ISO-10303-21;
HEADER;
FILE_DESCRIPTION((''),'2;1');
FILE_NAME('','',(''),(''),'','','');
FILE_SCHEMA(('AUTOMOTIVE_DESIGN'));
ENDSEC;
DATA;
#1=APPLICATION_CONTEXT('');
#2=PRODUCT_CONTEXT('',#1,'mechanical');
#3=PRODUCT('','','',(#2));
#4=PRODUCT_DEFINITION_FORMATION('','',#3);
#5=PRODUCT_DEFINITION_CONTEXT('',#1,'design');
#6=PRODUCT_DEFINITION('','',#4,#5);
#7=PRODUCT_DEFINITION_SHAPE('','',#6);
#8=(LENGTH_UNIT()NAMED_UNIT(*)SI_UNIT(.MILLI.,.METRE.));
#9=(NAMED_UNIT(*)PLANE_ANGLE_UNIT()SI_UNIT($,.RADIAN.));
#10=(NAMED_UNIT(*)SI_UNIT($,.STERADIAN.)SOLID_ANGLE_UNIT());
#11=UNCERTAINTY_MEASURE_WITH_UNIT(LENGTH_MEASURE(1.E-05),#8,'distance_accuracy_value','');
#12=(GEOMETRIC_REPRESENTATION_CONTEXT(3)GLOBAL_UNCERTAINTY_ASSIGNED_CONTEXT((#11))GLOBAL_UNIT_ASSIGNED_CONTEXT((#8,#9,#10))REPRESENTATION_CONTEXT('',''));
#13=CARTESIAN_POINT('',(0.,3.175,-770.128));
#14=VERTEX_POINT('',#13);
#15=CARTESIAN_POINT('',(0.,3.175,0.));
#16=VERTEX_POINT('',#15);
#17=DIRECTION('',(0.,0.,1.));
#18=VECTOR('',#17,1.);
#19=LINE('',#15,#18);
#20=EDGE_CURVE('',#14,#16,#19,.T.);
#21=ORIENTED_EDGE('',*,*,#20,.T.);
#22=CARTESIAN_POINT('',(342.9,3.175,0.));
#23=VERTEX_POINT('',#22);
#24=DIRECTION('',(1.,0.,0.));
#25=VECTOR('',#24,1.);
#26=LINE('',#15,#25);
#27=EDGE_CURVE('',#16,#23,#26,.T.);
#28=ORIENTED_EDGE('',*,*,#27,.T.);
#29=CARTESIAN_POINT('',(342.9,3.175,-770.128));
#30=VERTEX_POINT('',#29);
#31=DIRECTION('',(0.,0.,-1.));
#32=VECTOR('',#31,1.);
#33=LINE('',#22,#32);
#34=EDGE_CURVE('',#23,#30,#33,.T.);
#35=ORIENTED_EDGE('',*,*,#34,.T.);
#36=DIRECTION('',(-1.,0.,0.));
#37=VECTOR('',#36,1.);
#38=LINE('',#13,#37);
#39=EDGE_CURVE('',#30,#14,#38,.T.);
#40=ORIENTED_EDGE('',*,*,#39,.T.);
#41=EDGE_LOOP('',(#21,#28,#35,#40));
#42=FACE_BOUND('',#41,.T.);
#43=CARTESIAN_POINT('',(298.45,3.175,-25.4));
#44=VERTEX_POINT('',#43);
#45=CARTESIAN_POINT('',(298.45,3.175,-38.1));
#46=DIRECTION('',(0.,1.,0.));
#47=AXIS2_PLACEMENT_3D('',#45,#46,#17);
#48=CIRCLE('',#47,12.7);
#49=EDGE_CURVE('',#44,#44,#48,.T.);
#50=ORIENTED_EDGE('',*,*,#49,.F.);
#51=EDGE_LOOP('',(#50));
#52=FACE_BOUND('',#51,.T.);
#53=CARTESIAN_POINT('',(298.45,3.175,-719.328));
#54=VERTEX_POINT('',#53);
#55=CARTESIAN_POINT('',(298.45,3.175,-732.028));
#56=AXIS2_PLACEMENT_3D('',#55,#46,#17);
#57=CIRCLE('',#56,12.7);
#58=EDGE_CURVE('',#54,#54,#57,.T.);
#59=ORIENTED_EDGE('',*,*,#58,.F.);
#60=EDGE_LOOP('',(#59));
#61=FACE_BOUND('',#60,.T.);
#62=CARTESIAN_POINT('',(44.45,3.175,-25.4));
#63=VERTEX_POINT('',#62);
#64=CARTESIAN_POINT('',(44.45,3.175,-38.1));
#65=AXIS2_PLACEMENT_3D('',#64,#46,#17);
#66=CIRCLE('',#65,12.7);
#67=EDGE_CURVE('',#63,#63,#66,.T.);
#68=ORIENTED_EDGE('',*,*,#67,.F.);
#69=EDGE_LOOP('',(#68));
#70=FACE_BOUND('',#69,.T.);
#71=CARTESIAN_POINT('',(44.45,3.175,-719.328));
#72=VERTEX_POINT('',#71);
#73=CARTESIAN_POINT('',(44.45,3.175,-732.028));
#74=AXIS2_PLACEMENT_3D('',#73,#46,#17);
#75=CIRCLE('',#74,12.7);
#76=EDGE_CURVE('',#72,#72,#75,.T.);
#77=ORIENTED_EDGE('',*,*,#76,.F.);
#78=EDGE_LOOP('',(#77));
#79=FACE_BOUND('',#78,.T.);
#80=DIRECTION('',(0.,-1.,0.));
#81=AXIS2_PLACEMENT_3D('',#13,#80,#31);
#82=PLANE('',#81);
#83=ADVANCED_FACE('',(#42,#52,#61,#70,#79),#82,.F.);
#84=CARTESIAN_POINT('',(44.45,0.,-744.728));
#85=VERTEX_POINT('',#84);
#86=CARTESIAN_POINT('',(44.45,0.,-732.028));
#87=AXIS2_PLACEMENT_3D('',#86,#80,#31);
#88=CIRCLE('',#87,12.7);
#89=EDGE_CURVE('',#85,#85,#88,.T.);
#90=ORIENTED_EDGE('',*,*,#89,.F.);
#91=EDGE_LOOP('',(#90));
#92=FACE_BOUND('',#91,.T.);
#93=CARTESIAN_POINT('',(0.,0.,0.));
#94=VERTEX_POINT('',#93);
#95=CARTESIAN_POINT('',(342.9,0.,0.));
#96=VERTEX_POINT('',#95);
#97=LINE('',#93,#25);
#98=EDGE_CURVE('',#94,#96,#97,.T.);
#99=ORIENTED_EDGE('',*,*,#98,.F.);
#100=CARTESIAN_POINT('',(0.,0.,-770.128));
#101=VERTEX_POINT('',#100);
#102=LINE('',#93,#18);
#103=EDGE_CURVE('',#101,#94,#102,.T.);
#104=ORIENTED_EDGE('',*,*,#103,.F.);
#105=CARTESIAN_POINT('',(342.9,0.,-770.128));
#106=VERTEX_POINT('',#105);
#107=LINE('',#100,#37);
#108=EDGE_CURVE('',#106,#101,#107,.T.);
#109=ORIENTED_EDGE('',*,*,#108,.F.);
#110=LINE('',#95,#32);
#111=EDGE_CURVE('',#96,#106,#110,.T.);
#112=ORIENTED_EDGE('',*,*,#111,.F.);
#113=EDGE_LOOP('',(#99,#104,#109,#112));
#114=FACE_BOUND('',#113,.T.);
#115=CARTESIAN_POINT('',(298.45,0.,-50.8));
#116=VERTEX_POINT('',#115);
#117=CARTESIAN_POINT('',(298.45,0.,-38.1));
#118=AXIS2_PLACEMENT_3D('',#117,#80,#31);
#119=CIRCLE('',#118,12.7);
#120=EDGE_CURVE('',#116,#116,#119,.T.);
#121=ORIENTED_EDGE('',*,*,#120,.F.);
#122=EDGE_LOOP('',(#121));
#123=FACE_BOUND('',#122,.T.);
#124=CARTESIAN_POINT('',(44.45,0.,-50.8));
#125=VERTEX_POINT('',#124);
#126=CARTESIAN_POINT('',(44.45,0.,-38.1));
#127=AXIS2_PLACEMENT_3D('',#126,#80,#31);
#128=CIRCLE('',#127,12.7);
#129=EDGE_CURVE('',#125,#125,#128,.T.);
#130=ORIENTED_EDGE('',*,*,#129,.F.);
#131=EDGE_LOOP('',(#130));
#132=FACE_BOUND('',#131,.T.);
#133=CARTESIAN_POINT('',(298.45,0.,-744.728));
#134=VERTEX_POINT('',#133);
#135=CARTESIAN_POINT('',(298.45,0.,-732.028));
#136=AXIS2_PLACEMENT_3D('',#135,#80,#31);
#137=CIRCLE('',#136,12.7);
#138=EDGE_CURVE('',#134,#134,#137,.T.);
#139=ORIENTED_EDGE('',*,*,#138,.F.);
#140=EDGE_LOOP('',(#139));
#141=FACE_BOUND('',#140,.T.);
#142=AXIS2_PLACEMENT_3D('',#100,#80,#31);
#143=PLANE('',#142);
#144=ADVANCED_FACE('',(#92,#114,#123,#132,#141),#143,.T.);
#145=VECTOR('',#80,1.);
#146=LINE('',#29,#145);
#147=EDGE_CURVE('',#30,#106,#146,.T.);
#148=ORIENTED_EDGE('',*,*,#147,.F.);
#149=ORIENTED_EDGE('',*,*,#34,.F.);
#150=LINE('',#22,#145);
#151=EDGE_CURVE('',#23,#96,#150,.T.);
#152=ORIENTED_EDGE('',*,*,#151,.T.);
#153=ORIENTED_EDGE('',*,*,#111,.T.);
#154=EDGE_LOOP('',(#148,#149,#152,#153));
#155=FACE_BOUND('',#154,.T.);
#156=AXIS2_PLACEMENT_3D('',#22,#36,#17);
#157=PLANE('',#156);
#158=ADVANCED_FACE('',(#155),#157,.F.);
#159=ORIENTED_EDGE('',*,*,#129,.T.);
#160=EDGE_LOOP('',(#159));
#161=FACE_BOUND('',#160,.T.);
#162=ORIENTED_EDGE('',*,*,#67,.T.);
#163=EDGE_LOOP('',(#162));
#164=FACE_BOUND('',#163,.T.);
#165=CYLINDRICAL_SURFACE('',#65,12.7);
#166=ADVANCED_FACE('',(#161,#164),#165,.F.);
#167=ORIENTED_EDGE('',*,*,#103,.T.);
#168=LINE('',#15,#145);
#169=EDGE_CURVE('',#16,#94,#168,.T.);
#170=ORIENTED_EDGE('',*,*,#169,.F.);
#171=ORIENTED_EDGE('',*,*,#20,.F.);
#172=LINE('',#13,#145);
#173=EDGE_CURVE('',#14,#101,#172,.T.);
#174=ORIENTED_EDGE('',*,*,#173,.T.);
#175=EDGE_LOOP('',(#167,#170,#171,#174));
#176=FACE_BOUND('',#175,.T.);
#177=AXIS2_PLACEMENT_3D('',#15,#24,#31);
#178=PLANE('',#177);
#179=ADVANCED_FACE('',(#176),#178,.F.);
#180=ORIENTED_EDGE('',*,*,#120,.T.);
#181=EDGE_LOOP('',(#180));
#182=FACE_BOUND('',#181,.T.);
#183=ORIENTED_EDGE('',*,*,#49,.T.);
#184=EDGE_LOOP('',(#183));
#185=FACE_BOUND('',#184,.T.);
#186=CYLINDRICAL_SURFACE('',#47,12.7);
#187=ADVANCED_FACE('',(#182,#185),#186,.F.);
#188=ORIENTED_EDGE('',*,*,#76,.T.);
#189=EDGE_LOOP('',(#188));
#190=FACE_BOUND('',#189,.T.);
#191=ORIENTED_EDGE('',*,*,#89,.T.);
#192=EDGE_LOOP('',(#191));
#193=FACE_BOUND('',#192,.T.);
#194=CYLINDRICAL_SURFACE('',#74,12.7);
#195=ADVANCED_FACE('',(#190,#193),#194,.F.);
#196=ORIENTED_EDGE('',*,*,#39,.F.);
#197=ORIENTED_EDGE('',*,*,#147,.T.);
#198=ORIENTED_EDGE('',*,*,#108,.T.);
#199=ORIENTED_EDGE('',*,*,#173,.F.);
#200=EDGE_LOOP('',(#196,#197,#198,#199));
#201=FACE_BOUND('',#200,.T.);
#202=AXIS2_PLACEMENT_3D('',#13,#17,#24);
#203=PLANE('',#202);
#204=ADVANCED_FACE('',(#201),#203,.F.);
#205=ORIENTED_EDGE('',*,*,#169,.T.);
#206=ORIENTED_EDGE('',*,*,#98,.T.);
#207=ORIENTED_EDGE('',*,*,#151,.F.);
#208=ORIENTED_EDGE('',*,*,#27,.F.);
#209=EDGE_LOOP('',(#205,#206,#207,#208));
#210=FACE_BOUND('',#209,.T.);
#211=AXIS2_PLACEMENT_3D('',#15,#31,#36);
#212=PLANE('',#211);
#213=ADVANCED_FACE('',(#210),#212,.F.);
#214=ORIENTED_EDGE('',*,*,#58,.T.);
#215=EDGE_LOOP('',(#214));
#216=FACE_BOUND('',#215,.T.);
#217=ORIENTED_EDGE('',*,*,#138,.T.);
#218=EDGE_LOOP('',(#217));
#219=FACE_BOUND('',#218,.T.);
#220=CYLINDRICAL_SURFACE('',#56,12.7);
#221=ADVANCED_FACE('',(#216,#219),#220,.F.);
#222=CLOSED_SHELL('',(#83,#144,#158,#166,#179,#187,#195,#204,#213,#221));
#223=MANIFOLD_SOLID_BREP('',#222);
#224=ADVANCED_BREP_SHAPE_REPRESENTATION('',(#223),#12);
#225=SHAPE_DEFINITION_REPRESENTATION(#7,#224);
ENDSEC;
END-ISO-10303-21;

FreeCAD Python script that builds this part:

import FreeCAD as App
import Part
import Sketcher

V = App.Vector
Q = App.Units.Quantity

doc = App.newDocument("Part")
params = doc.addObject("Spreadsheet::Sheet", "Params")
for row, (alias, value) in enumerate([
    ("sketch1_width", "13.5 in"),
    ("sketch1_height", "30.32 in"),
    ("pad1_length", "0.125 in"),
    ("sketch2_diameter", "1 in"),
    ("hole_diameter", "1 in"),
    ("hole_depth", "0.81 in"),
], start=1):
    params.set(f"A{row}", alias)
    params.set(f"B{row}", "=" + value)
    params.setAlias(f"B{row}", alias)

body = doc.addObject("PartDesign::Body", "Body")

# Sketch on XZ plane
sketch1 = body.newObject("Sketcher::SketchObject", "Sketch")
sketch1.AttachmentSupport = (doc.getObject("XZ_Plane"), [""])
sketch1.MapMode = "FlatFace"
sketch1.addGeometry(Part.LineSegment(V(0, -770.128, 0), V(0, 0, 0)), False)
sketch1.addGeometry(Part.LineSegment(V(0, 0, 0), V(342.9, 0, 0)), False)
sketch1.addGeometry(Part.LineSegment(V(342.9, 0, 0), V(342.9, -770.128, 0)), False)
sketch1.addGeometry(Part.LineSegment(V(342.9, -770.128, 0), V(0, -770.128, 0)), False)
sketch1.addConstraint(Sketcher.Constraint("Coincident", 0, 2, 1, 1))
sketch1.addConstraint(Sketcher.Constraint("Coincident", 1, 2, 2, 1))
sketch1.addConstraint(Sketcher.Constraint("Coincident", 2, 2, 3, 1))
sketch1.addConstraint(Sketcher.Constraint("Coincident", 3, 2, 0, 1))
sketch1.addConstraint(Sketcher.Constraint("Vertical", 0))
sketch1.addConstraint(Sketcher.Constraint("Horizontal", 1))
sketch1.addConstraint(Sketcher.Constraint("Vertical", 2))
sketch1.addConstraint(Sketcher.Constraint("Horizontal", 3))
sketch1.addConstraint(Sketcher.Constraint("Coincident", 0, 2, -1, 1))
sketch1.addConstraint(Sketcher.Constraint("DistanceX", 1, 1, 1, 2, Q("13.5 in")))
sketch1.addConstraint(Sketcher.Constraint("DistanceY", 0, 1, 0, 2, Q("30.32 in")))
sketch1.setExpression("Constraints[9]", "Params.sketch1_width")
sketch1.setExpression("Constraints[10]", "Params.sketch1_height")
pad1 = body.newObject("PartDesign::Pad", "Pad")
pad1.Profile = sketch1
pad1.setExpression("Length", "Params.pad1_length")
pad1.Reversed = True

# Sketch on XZ plane
sketch2 = body.newObject("Sketcher::SketchObject", "Sketch001")
sketch2.AttachmentSupport = (doc.getObject("XZ_Plane"), [""])
sketch2.MapMode = "FlatFace"
sketch2.AttachmentOffset = App.Placement(V(0, 0, -0.125 * 25.4), App.Rotation())
sketch2.addGeometry(Part.Circle(V(44.45, -38.1, 0), V(0, 0, 1), 12.7), False)
sketch2.addGeometry(Part.Circle(V(44.45, -732.028, 0), V(0, 0, 1), 12.7), False)
sketch2.addGeometry(Part.Circle(V(298.45, -732.028, 0), V(0, 0, 1), 12.7), False)
sketch2.addGeometry(Part.Circle(V(298.45, -38.1, 0), V(0, 0, 1), 12.7), False)
sketch2.addConstraint(Sketcher.Constraint("Equal", 0, 1))
sketch2.addConstraint(Sketcher.Constraint("Equal", 1, 2))
sketch2.addConstraint(Sketcher.Constraint("Equal", 2, 3))
sketch2.addConstraint(Sketcher.Constraint("Horizontal", 1, 3, 2, 3))
sketch2.addConstraint(Sketcher.Constraint("Horizontal", 0, 3, 3, 3))
sketch2.addConstraint(Sketcher.Constraint("Vertical", 0, 3, 1, 3))
sketch2.addConstraint(Sketcher.Constraint("Vertical", 2, 3, 3, 3))
sketch2.addConstraint(Sketcher.Constraint("Diameter", 0, Q("1 in")))
sketch2.addConstraint(Sketcher.Constraint("DistanceX", 1, 3, 2, 3, Q("10 in")))
sketch2.addConstraint(Sketcher.Constraint("DistanceY", 0, 3, -1, 1, Q("1.5 in")))
sketch2.addConstraint(Sketcher.Constraint("DistanceX", -1, 1, 0, 3, Q("1.75 in")))
sketch2.addConstraint(Sketcher.Constraint("DistanceY", 1, 3, -1, 1, Q("28.82 in")))
sketch2.setExpression("Constraints[7]", "Params.sketch2_diameter")
doc.recompute()
hole = body.newObject("PartDesign::Hole", "Hole")
hole.Profile = sketch2
hole.ThreadType = "None"
hole.setExpression("Diameter", "Params.hole_diameter")
hole.DepthType = "Dimension"
hole.setExpression("Depth", "Params.hole_depth")
hole.DrillPoint = "Angled"
hole.DrillPointAngle = 118
hole.Reversed = True

doc.recompute()
